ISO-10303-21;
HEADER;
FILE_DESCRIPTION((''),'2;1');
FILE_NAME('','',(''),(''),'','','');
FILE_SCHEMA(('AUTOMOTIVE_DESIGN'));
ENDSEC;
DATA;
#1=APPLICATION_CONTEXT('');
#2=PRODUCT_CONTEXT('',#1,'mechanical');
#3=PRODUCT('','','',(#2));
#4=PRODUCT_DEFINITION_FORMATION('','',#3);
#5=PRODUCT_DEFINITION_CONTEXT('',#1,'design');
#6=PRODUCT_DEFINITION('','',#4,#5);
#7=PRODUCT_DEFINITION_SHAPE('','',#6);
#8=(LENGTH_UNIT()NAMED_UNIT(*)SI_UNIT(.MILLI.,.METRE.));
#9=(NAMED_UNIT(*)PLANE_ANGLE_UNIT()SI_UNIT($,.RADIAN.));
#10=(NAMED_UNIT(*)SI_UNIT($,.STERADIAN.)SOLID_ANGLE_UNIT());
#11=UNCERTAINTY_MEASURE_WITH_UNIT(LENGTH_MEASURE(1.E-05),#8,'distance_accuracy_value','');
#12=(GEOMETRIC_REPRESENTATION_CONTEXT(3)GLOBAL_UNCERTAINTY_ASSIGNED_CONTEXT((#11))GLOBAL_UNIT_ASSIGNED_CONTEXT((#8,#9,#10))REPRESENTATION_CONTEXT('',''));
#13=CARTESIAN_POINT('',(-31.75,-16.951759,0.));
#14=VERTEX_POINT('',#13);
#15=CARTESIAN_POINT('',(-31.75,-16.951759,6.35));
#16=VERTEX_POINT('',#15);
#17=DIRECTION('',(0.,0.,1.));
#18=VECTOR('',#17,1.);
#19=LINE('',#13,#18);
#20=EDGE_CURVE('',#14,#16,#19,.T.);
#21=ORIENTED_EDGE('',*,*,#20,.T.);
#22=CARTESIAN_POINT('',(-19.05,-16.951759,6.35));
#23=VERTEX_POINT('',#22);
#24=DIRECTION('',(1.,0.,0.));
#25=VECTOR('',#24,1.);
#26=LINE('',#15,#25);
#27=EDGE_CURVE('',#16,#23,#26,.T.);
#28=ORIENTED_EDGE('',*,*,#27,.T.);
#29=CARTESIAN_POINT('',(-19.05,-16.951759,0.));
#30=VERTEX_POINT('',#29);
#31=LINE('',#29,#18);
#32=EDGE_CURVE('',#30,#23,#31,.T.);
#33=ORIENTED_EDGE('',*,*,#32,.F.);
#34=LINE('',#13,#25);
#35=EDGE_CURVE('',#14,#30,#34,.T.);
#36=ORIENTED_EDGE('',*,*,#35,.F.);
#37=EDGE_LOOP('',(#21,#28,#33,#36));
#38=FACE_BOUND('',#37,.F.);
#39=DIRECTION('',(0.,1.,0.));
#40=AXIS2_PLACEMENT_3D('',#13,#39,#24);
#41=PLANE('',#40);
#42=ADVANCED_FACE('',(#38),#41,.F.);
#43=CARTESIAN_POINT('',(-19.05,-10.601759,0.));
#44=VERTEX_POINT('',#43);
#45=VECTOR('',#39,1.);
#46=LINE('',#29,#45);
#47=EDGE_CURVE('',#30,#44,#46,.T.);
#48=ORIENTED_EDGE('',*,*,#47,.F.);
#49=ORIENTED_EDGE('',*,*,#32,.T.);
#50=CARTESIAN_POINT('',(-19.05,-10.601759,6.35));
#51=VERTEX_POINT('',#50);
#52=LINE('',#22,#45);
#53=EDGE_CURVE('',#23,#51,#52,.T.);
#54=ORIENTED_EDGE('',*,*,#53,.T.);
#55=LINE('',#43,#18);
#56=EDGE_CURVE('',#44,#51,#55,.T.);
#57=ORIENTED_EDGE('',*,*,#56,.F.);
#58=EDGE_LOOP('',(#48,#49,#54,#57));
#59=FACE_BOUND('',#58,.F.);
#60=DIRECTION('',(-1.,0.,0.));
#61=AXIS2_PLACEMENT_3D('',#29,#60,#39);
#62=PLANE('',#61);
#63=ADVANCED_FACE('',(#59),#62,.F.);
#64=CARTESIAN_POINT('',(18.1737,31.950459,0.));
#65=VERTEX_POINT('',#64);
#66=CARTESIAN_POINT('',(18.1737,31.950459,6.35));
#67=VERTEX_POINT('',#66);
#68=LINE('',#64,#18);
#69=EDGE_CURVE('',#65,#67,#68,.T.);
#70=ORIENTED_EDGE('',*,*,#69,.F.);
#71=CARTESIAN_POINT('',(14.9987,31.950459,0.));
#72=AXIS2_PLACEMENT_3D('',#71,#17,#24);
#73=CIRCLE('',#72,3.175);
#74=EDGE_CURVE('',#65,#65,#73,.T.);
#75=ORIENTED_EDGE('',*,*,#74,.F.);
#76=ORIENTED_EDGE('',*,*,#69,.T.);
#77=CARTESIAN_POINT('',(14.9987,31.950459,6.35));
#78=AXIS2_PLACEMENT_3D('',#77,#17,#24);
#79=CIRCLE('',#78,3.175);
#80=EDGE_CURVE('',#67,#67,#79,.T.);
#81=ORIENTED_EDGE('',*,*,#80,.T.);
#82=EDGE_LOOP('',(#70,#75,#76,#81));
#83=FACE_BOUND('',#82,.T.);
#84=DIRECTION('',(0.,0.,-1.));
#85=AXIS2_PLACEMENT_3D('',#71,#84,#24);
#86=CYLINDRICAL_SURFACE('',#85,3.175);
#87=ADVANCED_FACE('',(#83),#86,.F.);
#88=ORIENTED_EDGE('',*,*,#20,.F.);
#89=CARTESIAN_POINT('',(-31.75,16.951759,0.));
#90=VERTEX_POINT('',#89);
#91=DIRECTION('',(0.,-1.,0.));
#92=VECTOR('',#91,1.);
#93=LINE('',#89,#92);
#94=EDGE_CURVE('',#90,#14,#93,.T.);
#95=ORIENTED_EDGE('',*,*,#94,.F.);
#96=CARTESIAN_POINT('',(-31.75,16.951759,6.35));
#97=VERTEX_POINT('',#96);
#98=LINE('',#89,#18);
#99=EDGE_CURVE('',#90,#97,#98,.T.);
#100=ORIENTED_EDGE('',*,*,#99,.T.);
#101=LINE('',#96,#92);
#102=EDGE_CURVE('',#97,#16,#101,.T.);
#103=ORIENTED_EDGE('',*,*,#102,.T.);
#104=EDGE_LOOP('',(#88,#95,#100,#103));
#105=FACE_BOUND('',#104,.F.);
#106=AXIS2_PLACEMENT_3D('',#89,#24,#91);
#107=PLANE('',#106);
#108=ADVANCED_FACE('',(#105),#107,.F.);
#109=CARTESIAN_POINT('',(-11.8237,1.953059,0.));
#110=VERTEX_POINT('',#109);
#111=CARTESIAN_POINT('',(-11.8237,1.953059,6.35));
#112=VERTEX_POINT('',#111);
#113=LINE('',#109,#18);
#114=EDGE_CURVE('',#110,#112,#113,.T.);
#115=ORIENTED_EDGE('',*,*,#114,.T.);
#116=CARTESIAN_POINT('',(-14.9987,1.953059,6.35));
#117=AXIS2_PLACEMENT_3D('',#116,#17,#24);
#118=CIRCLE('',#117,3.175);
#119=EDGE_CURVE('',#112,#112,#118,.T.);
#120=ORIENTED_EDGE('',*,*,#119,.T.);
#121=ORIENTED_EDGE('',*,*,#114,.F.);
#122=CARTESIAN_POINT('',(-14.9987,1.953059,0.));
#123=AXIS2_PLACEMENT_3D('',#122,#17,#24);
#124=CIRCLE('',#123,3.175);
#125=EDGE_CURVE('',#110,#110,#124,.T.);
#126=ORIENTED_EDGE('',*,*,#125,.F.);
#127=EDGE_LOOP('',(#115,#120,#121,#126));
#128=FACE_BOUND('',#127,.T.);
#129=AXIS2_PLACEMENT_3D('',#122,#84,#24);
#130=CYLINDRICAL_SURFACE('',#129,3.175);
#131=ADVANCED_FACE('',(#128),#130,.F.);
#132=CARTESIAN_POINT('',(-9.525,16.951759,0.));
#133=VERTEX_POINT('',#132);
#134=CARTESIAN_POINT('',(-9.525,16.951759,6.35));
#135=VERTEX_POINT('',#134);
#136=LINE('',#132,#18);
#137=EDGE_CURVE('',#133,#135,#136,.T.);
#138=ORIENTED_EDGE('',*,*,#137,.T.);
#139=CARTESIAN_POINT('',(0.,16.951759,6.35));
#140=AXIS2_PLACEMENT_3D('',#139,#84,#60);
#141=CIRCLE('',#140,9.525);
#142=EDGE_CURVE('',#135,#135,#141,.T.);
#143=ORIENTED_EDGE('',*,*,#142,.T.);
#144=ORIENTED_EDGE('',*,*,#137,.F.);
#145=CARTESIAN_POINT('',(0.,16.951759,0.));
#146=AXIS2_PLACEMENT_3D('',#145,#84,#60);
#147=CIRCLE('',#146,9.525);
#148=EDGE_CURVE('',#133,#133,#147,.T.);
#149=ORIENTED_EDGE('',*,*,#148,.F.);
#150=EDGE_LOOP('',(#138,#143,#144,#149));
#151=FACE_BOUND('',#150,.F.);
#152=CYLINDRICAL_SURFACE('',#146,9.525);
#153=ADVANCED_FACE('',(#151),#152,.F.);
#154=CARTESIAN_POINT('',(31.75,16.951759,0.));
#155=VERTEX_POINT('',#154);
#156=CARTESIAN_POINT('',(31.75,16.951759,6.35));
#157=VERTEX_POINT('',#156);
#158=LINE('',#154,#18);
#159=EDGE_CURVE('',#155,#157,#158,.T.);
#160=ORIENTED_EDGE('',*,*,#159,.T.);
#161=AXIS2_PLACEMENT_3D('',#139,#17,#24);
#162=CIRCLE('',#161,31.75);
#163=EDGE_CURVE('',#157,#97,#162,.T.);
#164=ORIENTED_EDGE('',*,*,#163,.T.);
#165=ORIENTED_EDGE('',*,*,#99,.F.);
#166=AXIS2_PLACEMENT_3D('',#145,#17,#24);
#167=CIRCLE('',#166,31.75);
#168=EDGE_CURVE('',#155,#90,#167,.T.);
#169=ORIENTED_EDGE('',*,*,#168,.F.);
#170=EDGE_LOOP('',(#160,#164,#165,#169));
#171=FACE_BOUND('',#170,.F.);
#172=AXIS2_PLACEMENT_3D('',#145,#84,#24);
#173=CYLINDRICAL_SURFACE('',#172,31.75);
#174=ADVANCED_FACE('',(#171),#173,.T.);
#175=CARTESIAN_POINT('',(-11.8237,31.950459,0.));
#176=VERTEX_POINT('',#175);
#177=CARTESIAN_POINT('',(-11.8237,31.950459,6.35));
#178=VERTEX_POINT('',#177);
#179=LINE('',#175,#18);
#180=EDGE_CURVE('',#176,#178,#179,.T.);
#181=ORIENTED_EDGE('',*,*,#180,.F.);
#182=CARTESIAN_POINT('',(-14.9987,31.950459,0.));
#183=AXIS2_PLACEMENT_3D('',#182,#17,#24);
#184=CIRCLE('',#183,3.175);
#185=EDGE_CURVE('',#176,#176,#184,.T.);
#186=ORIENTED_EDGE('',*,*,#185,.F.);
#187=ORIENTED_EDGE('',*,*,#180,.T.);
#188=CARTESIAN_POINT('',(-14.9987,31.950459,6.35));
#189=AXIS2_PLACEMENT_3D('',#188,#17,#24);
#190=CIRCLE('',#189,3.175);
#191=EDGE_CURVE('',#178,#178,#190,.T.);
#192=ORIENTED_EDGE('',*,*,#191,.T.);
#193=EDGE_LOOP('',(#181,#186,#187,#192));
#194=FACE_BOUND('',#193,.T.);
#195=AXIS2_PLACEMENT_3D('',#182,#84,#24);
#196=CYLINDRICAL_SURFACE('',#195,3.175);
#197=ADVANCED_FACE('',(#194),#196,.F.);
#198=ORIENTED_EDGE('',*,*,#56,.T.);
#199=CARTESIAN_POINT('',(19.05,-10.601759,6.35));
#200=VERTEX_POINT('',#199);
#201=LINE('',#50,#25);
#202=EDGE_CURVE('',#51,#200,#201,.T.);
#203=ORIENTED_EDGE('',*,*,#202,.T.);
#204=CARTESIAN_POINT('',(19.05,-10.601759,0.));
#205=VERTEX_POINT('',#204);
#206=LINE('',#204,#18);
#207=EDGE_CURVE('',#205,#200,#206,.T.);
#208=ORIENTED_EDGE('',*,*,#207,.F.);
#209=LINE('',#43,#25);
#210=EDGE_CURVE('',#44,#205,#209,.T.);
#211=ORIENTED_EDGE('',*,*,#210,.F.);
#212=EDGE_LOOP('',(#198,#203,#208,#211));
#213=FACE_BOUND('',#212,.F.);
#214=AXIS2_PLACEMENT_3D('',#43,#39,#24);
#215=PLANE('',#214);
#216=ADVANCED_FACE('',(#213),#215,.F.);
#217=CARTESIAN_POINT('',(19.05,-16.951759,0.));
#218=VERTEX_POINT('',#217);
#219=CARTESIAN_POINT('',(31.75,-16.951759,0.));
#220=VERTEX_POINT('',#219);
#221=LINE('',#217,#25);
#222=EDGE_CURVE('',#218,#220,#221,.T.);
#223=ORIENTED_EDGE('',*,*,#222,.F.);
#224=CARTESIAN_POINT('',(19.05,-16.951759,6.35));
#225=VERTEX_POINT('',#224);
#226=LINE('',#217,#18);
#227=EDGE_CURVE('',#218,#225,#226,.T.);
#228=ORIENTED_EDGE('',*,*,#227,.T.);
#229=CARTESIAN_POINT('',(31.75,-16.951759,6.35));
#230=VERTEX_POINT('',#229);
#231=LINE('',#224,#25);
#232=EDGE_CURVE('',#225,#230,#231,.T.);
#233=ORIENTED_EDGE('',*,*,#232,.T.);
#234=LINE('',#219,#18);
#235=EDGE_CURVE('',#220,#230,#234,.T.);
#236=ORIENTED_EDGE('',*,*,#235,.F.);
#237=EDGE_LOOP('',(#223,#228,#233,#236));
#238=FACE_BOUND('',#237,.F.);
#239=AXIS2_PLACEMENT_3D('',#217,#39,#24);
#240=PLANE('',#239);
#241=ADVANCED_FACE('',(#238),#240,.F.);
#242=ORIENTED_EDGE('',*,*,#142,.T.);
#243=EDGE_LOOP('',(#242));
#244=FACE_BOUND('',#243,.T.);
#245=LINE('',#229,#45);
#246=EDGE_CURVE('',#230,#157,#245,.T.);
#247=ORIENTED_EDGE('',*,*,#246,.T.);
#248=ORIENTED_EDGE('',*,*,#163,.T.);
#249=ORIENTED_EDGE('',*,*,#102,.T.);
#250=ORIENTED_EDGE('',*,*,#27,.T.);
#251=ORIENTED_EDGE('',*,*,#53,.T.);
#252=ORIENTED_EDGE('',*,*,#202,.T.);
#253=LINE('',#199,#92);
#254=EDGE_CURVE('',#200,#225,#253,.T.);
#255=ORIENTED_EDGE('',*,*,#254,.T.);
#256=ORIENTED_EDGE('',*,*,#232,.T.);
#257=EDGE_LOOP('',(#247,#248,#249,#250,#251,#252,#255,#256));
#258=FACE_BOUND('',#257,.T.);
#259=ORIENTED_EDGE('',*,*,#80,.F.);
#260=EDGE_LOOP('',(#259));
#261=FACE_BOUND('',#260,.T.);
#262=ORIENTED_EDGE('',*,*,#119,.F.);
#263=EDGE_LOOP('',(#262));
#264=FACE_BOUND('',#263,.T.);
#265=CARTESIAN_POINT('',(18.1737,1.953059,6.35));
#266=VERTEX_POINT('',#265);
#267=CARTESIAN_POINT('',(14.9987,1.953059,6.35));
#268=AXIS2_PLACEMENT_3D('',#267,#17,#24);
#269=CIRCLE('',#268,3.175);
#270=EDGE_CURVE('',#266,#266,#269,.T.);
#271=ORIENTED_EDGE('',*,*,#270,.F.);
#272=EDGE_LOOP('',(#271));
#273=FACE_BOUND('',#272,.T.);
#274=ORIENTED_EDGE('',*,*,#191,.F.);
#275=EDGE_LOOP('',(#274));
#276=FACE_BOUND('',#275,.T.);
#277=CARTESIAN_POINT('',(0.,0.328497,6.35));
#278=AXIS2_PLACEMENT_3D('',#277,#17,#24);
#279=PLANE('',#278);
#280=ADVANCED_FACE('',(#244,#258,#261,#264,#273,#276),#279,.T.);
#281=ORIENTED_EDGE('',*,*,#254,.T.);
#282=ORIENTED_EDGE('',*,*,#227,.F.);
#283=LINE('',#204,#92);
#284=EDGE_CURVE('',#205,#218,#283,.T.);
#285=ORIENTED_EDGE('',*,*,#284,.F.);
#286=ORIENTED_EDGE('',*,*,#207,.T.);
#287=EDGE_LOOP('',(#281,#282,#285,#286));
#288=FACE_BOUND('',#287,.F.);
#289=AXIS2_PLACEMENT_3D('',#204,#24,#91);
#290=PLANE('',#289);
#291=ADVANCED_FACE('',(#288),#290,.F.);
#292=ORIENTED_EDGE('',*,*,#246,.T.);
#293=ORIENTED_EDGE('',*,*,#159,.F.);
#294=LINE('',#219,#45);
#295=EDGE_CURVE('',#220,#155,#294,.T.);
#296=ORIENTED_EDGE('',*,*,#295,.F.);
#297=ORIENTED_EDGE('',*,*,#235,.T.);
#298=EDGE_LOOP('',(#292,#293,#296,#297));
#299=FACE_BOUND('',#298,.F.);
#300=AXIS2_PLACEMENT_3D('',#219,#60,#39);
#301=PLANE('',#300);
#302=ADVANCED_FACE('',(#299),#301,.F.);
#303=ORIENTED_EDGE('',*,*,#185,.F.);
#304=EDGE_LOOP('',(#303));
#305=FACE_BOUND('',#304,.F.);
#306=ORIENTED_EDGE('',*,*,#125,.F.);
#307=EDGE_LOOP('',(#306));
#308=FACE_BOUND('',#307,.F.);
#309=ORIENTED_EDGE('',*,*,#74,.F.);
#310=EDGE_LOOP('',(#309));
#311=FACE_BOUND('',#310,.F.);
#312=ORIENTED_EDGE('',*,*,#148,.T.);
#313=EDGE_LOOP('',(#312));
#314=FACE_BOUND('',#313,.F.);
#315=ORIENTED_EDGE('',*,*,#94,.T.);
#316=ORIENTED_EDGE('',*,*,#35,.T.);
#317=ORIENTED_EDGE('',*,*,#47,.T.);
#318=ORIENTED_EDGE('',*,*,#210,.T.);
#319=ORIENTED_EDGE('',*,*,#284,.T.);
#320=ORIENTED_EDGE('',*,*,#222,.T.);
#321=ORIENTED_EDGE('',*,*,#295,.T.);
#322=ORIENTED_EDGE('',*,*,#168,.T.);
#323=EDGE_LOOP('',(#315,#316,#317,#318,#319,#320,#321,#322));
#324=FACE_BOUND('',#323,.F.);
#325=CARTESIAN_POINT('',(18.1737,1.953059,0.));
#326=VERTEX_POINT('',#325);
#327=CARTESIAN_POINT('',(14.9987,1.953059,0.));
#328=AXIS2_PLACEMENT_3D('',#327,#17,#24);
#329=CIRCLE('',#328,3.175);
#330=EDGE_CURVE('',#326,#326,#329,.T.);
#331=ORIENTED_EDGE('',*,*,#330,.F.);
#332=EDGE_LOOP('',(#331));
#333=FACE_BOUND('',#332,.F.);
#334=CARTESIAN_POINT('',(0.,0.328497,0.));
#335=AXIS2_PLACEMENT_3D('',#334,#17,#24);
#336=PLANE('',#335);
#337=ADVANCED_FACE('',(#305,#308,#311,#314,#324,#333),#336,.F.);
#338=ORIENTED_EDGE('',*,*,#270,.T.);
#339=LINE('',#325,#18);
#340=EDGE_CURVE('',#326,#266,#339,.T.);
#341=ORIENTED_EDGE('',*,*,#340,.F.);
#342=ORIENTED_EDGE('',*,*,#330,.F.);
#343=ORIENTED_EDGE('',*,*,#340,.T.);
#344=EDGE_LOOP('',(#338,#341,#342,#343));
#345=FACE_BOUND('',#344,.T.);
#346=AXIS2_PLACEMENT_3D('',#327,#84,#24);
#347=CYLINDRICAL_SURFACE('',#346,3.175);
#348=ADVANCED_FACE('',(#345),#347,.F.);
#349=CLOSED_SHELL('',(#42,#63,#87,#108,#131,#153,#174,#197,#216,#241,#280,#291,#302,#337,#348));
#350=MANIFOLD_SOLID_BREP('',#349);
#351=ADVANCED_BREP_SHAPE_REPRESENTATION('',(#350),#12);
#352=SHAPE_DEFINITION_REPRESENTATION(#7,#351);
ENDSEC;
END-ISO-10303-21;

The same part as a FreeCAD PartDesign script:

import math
import FreeCAD as App
import Part
import Sketcher

V = App.Vector
Q = App.Units.Quantity

doc = App.newDocument("Part")
body = doc.addObject("PartDesign::Body", "Body")

# Sketch on XY plane
sketch1 = doc.addObject("Sketcher::SketchObject", "Sketch")
body.addObject(sketch1)
sketch1.AttachmentSupport = (doc.XY_Plane, [""])
sketch1.MapMode = "FlatFace"
sketch1.addGeometry([
    Part.LineSegment(V(31.8, -17, 0), V(31.8, 17, 0)),  # 0
    Part.ArcOfCircle(Part.Circle(V(0, 17, 0), V(0, 0, 1), 31.8), math.radians(0), math.radians(180)),  # 1
    Part.LineSegment(V(-31.8, 17, 0), V(-31.8, -17, 0)),  # 2
    Part.LineSegment(V(-31.8, -17, 0), V(-19.1, -17, 0)),  # 3
    Part.LineSegment(V(-19.1, -17, 0), V(-19.1, -10.6, 0)),  # 4
    Part.LineSegment(V(-19.1, -10.6, 0), V(19.1, -10.6, 0)),  # 5
    Part.LineSegment(V(19.1, -10.6, 0), V(19.1, -17, 0)),  # 6
    Part.LineSegment(V(19.1, -17, 0), V(31.8, -17, 0)),  # 7
    Part.Circle(V(-15, 2, 0), V(0, 0, 1), 3.2),  # 8
    Part.Circle(V(15, 2, 0), V(0, 0, 1), 3.2),  # 9
    Part.Circle(V(-15, 32, 0), V(0, 0, 1), 3.2),  # 10
    Part.Circle(V(0, 17, 0), V(0, 0, 1), 9.5),  # 11
    Part.Circle(V(15, 32, 0), V(0, 0, 1), 3.2),  # 12
], False)
sketch1.addConstraint([
    Sketcher.Constraint("Tangent", 0, 2, 1, 1),
    Sketcher.Constraint("Tangent", 1, 2, 2, 1),
    Sketcher.Constraint("Coincident", 2, 2, 3, 1),
    Sketcher.Constraint("Coincident", 3, 2, 4, 1),
    Sketcher.Constraint("Coincident", 4, 2, 5, 1),
    Sketcher.Constraint("Coincident", 5, 2, 6, 1),
    Sketcher.Constraint("Coincident", 6, 2, 7, 1),
    Sketcher.Constraint("Coincident", 7, 2, 0, 1),
    Sketcher.Constraint("Vertical", 0),
    Sketcher.Constraint("Vertical", 2),
    Sketcher.Constraint("Horizontal", 3),
    Sketcher.Constraint("Vertical", 4),
    Sketcher.Constraint("Horizontal", 5),
    Sketcher.Constraint("Vertical", 6),
    Sketcher.Constraint("Horizontal", 7),
    Sketcher.Constraint("Coincident", 11, 3, 1, 3),
    Sketcher.Constraint("Equal", 8, 9),
    Sketcher.Constraint("Equal", 9, 10),
    Sketcher.Constraint("Equal", 10, 12),
    Sketcher.Constraint("Symmetric", 0, 2, 2, 2, -1, 1),
    Sketcher.Constraint("Symmetric", 8, 3, 9, 3, -2),
    Sketcher.Constraint("Symmetric", 10, 3, 12, 3, -2),
    Sketcher.Constraint("Symmetric", 3, 2, 6, 2, -2),
    Sketcher.Constraint("Vertical", 8, 3, 10, 3),
    Sketcher.Constraint("Diameter", 8, Q("0.25 in")),
    Sketcher.Constraint("Diameter", 11, Q("0.75 in")),
    Sketcher.Constraint("Radius", 1, Q("1.25 in")),
    Sketcher.Constraint("DistanceX", 3, 1, 3, 2, Q("0.5 in")),
    Sketcher.Constraint("DistanceY", 4, 1, 4, 2, Q("0.25 in")),
    Sketcher.Constraint("DistanceX", 8, 3, 9, 3, Q("1.181 in")),
    Sketcher.Constraint("DistanceY", 8, 3, 10, 3, Q("1.181 in")),
    Sketcher.Constraint("DistanceY", 8, 3, 1, 3, Q("0.5905 in")),
    Sketcher.Constraint("DistanceY", 0, 1, 0, 2, Q("33.903518 mm")),
])
pad1 = doc.addObject("PartDesign::Pad", "Pad")
body.addObject(pad1)
pad1.Profile = sketch1
pad1.Length = Q("0.25 in")

doc.recompute()
